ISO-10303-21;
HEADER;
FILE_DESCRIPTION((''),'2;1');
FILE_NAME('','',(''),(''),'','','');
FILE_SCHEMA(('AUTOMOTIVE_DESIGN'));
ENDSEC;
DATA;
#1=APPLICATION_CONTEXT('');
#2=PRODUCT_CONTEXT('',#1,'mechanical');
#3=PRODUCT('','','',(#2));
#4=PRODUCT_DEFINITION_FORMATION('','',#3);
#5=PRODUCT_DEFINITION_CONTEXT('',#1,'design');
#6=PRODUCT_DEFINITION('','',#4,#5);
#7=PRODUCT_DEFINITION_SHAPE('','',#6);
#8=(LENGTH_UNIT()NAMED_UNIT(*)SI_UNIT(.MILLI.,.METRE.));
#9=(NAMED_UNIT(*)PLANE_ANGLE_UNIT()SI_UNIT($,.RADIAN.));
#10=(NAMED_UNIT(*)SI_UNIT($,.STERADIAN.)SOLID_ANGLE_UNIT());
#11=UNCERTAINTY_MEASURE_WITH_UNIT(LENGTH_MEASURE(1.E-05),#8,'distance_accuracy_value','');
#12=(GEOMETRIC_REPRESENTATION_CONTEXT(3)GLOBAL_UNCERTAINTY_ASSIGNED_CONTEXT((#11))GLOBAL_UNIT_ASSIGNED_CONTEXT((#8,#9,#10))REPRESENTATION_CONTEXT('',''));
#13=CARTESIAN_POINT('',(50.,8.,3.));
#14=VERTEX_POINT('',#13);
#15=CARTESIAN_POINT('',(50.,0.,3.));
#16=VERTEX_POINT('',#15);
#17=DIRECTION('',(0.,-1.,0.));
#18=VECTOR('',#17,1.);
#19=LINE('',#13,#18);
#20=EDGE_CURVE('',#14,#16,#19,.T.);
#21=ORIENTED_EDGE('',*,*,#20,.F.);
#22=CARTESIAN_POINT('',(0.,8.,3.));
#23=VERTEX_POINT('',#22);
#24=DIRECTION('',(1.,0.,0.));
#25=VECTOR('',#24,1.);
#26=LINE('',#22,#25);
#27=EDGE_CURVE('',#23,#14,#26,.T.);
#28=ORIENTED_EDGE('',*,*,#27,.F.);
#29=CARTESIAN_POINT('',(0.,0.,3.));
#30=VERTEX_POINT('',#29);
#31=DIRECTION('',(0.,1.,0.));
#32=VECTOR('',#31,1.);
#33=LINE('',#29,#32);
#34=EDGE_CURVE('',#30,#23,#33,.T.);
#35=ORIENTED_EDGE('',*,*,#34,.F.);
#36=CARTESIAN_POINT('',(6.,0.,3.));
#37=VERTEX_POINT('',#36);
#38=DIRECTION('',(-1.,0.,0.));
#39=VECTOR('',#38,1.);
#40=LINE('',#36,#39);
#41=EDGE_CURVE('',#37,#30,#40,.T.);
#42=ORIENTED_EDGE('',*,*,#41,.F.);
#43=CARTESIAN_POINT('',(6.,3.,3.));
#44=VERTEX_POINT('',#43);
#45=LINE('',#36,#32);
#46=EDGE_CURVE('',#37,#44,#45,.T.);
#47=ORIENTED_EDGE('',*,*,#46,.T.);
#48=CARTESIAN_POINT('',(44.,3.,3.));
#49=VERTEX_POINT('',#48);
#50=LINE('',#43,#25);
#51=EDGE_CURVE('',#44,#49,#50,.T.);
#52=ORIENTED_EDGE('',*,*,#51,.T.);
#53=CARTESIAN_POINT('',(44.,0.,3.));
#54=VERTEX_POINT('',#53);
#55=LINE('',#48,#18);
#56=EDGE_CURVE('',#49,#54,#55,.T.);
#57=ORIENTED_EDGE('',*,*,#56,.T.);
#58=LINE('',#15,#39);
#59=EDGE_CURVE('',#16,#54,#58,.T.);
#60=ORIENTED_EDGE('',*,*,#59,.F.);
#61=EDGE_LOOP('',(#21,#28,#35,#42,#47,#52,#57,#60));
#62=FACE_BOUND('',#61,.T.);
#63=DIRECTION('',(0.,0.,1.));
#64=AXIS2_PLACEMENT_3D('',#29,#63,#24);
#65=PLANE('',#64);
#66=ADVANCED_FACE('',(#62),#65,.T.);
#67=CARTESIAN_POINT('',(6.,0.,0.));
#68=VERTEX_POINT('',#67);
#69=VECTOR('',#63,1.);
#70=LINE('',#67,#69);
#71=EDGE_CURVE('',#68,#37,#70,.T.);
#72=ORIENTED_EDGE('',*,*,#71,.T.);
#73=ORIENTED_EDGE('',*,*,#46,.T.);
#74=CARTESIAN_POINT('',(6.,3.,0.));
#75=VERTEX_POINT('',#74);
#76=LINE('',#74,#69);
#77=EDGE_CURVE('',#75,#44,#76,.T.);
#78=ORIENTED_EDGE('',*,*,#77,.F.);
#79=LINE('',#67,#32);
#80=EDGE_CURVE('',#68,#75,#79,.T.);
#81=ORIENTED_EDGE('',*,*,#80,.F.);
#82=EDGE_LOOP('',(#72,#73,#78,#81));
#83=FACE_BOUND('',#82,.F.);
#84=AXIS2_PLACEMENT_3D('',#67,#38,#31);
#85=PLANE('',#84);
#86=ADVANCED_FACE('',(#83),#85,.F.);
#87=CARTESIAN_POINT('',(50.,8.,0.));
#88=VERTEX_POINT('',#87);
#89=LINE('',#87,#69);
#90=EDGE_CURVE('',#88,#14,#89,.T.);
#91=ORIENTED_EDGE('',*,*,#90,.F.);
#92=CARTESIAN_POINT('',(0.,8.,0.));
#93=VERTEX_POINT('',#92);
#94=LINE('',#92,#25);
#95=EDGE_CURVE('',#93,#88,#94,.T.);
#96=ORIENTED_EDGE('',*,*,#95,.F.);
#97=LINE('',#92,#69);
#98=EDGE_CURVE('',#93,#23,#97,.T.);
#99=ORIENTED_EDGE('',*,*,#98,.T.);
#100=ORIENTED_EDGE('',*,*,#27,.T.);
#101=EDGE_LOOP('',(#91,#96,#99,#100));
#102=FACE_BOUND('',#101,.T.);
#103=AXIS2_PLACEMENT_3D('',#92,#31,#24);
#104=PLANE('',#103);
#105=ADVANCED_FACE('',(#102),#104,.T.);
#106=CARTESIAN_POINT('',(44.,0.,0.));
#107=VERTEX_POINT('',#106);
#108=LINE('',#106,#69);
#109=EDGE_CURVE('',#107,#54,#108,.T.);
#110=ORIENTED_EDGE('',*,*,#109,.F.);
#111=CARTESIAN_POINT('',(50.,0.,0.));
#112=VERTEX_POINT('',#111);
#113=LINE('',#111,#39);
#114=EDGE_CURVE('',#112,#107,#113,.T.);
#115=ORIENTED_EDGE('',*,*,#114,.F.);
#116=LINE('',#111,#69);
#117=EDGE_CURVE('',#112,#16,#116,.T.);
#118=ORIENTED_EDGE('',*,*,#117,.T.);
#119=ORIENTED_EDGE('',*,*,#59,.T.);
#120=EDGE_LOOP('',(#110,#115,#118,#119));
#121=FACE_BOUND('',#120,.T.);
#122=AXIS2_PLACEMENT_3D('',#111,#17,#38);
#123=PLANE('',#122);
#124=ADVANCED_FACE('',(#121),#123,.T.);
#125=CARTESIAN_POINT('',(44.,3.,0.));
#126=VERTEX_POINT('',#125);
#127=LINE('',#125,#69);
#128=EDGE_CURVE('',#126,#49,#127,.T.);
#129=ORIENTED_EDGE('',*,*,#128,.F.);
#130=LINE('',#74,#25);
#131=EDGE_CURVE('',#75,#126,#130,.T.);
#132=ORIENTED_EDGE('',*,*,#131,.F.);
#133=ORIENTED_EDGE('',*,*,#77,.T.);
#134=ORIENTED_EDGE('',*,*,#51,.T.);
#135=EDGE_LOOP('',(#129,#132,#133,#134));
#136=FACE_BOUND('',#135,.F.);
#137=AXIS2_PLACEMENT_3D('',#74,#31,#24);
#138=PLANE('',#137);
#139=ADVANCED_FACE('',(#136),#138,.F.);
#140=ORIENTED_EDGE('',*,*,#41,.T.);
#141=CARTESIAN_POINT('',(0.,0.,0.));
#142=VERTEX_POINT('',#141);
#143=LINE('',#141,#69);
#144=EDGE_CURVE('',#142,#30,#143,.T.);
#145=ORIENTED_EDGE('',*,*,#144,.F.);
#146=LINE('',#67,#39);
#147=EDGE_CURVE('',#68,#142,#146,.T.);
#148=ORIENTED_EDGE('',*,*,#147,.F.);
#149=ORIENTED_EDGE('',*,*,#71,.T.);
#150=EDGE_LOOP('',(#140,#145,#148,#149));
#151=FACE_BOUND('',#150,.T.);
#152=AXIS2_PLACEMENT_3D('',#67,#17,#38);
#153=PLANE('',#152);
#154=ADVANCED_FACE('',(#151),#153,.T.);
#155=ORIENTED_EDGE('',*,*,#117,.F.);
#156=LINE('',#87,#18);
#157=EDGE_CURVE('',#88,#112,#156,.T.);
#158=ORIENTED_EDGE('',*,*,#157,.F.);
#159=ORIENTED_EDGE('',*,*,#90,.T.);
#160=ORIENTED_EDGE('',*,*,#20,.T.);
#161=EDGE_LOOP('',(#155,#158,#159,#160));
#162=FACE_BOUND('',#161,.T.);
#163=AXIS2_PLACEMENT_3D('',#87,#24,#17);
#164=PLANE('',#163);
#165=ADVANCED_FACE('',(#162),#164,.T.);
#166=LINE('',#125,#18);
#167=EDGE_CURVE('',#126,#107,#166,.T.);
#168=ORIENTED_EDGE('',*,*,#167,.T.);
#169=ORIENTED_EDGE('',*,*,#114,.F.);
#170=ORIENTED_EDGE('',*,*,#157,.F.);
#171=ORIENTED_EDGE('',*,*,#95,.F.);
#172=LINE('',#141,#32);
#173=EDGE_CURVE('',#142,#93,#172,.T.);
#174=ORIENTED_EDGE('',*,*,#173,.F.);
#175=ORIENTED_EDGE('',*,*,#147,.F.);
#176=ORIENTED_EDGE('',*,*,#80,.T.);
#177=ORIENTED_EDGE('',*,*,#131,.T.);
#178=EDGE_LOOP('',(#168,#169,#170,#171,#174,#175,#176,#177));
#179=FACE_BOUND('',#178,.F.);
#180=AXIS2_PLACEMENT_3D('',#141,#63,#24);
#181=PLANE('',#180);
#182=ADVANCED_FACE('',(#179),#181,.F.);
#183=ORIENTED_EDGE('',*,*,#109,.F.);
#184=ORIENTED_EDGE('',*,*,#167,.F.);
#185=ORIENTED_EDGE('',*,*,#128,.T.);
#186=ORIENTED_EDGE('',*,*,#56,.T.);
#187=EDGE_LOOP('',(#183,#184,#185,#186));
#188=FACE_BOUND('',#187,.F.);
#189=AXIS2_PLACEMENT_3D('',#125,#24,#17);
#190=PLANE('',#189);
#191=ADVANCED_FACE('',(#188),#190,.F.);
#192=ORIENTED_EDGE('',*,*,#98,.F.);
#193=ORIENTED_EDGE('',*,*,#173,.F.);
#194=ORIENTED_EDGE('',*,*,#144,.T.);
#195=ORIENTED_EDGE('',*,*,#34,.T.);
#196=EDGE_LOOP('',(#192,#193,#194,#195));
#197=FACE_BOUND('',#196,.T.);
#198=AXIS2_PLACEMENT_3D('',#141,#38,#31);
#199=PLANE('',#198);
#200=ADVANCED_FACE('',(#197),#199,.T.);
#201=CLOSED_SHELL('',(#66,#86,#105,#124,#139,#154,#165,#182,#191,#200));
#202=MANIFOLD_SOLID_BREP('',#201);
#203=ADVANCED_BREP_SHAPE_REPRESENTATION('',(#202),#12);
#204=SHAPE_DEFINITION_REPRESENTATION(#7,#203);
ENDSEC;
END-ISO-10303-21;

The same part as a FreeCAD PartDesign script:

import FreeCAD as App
import Part
import Sketcher
from FreeCAD import Vector
Q = App.Units.Quantity


def add_polygon(sketch, points):
    """Adds a closed chain of lines whose ends are joined by coincident constraints."""
    first, n = sketch.GeometryCount, len(points)
    for a, b in zip(points, points[1:] + points[:1]):
        sketch.addGeometry(Part.LineSegment(App.Vector(*a, 0), App.Vector(*b, 0)), False)
    for i in range(n):
        sketch.addConstraint(Sketcher.Constraint("Coincident", first + i, 2, first + (i + 1) % n, 1))

doc = App.newDocument("Part")
body = doc.addObject("PartDesign::Body", "Body")

# Sketch on XY plane
sketch1 = doc.addObject("Sketcher::SketchObject", "Sketch")
body.addObject(sketch1)
sketch1.AttachmentSupport = (doc.XY_Plane, [""])
sketch1.MapMode = "FlatFace"
add_polygon(sketch1, [(50, 8), (0, 8), (0, 0), (6, 0), (6, 3), (44, 3), (44, 0), (50, 0)])  # lines 0-7
sketch1.addConstraint([
    Sketcher.Constraint("Horizontal", 0),
    Sketcher.Constraint("Vertical", 1),
    Sketcher.Constraint("Horizontal", 2),
    Sketcher.Constraint("Vertical", 3),
    Sketcher.Constraint("Horizontal", 4),
    Sketcher.Constraint("Vertical", 5),
    Sketcher.Constraint("Horizontal", 6),
    Sketcher.Constraint("Vertical", 7),
    Sketcher.Constraint("Coincident", 1, 2, -1, 1),
    Sketcher.Constraint("PointOnObject", 5, 2, -1),
    Sketcher.Constraint("Equal", 2, 6),
    Sketcher.Constraint("DistanceX", 0, 2, 0, 1, Q("50 mm")),
    Sketcher.Constraint("DistanceX", 2, 1, 2, 2, Q("6 mm")),
    Sketcher.Constraint("DistanceY", 3, 1, 3, 2, Q("3 mm")),
    Sketcher.Constraint("DistanceY", 3, 2, 0, 2, Q("5 mm")),
])
pad1 = doc.addObject("PartDesign::Pad", "Pad")
body.addObject(pad1)
pad1.Profile = sketch1
pad1.Length = 3

doc.recompute()
